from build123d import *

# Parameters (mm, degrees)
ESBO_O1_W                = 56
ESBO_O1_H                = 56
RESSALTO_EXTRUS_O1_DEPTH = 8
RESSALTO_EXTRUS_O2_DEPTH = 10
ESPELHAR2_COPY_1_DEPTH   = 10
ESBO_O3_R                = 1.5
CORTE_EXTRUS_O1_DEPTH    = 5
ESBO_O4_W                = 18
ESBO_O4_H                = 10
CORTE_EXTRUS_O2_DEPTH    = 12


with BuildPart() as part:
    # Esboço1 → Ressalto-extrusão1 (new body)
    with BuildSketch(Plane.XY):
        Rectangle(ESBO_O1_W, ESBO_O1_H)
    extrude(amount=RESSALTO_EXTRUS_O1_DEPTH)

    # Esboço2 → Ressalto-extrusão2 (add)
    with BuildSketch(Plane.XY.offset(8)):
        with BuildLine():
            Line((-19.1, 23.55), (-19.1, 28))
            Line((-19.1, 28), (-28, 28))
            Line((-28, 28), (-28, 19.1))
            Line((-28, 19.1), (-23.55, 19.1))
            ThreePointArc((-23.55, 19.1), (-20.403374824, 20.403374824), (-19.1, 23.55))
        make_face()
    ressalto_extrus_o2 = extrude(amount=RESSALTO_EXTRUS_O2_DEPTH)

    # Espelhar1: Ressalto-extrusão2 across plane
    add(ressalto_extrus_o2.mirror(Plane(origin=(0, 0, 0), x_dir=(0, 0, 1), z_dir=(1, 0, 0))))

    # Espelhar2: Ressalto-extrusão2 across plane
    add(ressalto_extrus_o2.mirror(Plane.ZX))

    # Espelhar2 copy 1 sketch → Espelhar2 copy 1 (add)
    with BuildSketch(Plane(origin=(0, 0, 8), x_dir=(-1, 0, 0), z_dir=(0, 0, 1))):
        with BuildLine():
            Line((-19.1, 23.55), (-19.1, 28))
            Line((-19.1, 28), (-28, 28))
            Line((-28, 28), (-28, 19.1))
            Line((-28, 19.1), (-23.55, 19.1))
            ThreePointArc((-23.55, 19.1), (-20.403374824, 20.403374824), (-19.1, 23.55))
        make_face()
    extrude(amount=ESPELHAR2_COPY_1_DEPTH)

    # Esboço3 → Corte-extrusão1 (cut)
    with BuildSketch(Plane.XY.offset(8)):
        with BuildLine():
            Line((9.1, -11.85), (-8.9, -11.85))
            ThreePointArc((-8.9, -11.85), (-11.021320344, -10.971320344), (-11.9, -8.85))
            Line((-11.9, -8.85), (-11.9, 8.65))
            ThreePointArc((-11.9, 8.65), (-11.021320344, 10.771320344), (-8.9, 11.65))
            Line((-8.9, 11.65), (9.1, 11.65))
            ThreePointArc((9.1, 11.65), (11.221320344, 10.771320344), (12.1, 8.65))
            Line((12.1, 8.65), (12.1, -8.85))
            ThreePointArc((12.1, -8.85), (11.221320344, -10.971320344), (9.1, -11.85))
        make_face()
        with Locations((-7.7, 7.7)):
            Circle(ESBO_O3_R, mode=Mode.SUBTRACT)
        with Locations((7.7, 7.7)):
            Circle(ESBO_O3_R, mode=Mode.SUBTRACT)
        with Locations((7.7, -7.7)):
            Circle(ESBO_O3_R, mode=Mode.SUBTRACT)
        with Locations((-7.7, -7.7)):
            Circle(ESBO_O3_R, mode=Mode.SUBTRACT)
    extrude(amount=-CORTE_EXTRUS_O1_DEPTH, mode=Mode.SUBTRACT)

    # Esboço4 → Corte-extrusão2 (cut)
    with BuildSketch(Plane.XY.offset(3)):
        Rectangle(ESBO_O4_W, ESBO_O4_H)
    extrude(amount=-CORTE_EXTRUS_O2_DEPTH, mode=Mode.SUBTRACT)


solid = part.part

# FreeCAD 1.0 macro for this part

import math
import FreeCAD as App
import Part
import Sketcher

V = App.Vector

doc = App.newDocument("Part")
body = doc.addObject("PartDesign::Body", "Body")

# Sketch on XY plane
sketch1 = body.newObject("Sketcher::SketchObject", "Sketch")
sketch1.AttachmentSupport = (doc.getObject("XY_Plane"), [""])
sketch1.MapMode = "FlatFace"
sketch1.addGeometry([
    Part.LineSegment(V(-28, 28, 0), V(-28, -28, 0)),
    Part.LineSegment(V(-28, -28, 0), V(28, -28, 0)),
    Part.LineSegment(V(28, -28, 0), V(28, 28, 0)),
    Part.LineSegment(V(28, 28, 0), V(-28, 28, 0)),
], False)
sketch1.addConstraint([
    Sketcher.Constraint("Coincident", 0, 2, 1, 1),
    Sketcher.Constraint("Coincident", 1, 2, 2, 1),
    Sketcher.Constraint("Coincident", 2, 2, 3, 1),
    Sketcher.Constraint("Coincident", 3, 2, 0, 1),
    Sketcher.Constraint("Vertical", 0),
    Sketcher.Constraint("Horizontal", 1),
    Sketcher.Constraint("Vertical", 2),
    Sketcher.Constraint("Horizontal", 3),
    Sketcher.Constraint("Symmetric", 0, 2, 2, 2, -1, 1),
    Sketcher.Constraint("Equal", 3, 0),
    Sketcher.Constraint("DistanceX", 1, 1, 1, 2, 56.0),
])
pad1 = body.newObject("PartDesign::Pad", "Pad")
pad1.Profile = sketch1
pad1.Length = 8

# Sketch on XY plane
sketch2 = body.newObject("Sketcher::SketchObject", "Sketch001")
sketch2.AttachmentSupport = (doc.getObject("XY_Plane"), [""])
sketch2.MapMode = "FlatFace"
sketch2.AttachmentOffset = App.Placement(V(0, 0, 8), App.Rotation())
sketch2.addGeometry([
    Part.LineSegment(V(-19.1, 23.55, 0), V(-19.1, 28, 0)),  # 0
    Part.LineSegment(V(-19.1, 28, 0), V(-28, 28, 0)),  # 1
    Part.LineSegment(V(-28, 28, 0), V(-28, 19.1, 0)),  # 2
    Part.LineSegment(V(-28, 19.1, 0), V(-23.55, 19.1, 0)),  # 3
    Part.ArcOfCircle(Part.Circle(V(-23.55, 23.55, 0), V(0, 0, 1), 4.45), math.radians(-90), math.radians(0)),  # 4
], False)
sketch2.addConstraint([
    Sketcher.Constraint("Coincident", 0, 2, 1, 1),
    Sketcher.Constraint("Coincident", 1, 2, 2, 1),
    Sketcher.Constraint("Coincident", 2, 2, 3, 1),
    Sketcher.Constraint("Tangent", 3, 2, 4, 1),
    Sketcher.Constraint("Tangent", 4, 2, 0, 1),
    Sketcher.Constraint("Vertical", 0),
    Sketcher.Constraint("Horizontal", 1),
    Sketcher.Constraint("Vertical", 2),
    Sketcher.Constraint("Horizontal", 3),
    Sketcher.Constraint("Equal", 3, 0),
    Sketcher.Constraint("Radius", 4, 4.45),
    Sketcher.Constraint("DistanceX", 1, 2, 1, 1, 8.9),
    Sketcher.Constraint("DistanceY", -1, 1, 0, 2, 28.0),
    Sketcher.Constraint("DistanceX", 1, 2, -1, 1, 28.0),
])
pad2 = body.newObject("PartDesign::Pad", "Pad001")
pad2.Profile = sketch2
pad2.Length = 10
doc.recompute()

mirrored = body.newObject("PartDesign::Mirrored", "Mirrored")
mirrored.Originals = [pad2]
mirrored.MirrorPlane = (doc.getObject("YZ_Plane"), [""])
body.Tip = mirrored
doc.recompute()

mirrored2 = body.newObject("PartDesign::Mirrored", "Mirrored001")
mirrored2.Originals = [pad2]
mirrored2.MirrorPlane = (doc.getObject("XZ_Plane"), [""])
body.Tip = mirrored2

# Sketch on XY plane
sketch3 = body.newObject("Sketcher::SketchObject", "Sketch002")
sketch3.AttachmentSupport = (doc.getObject("XY_Plane"), [""])
sketch3.MapMode = "FlatFace"
sketch3.AttachmentOffset = App.Placement(V(0, 0, 8), App.Rotation())
sketch3.addGeometry([
    Part.LineSegment(V(19.1, -23.55, 0), V(19.1, -28, 0)),  # 0
    Part.LineSegment(V(19.1, -28, 0), V(28, -28, 0)),  # 1
    Part.LineSegment(V(28, -28, 0), V(28, -19.1, 0)),  # 2
    Part.LineSegment(V(28, -19.1, 0), V(23.55, -19.1, 0)),  # 3
    Part.ArcOfCircle(Part.Circle(V(23.55, -23.55, 0), V(0, 0, 1), 4.45), math.radians(90), math.radians(180)),  # 4
], False)
sketch3.addConstraint([
    Sketcher.Constraint("Coincident", 0, 2, 1, 1),
    Sketcher.Constraint("Coincident", 1, 2, 2, 1),
    Sketcher.Constraint("Coincident", 2, 2, 3, 1),
    Sketcher.Constraint("Tangent", 3, 2, 4, 1),
    Sketcher.Constraint("Tangent", 4, 2, 0, 1),
    Sketcher.Constraint("Vertical", 0),
    Sketcher.Constraint("Horizontal", 1),
    Sketcher.Constraint("Vertical", 2),
    Sketcher.Constraint("Horizontal", 3),
    Sketcher.Constraint("Equal", 3, 0),
    Sketcher.Constraint("Radius", 4, 4.45),
    Sketcher.Constraint("DistanceX", 1, 1, 1, 2, 8.9),
    Sketcher.Constraint("DistanceY", 0, 2, -1, 1, 28.0),
    Sketcher.Constraint("DistanceX", -1, 1, 1, 2, 28.0),
])
pad3 = body.newObject("PartDesign::Pad", "Pad002")
pad3.Profile = sketch3
pad3.Length = 10

# Sketch on XY plane
sketch4 = body.newObject("Sketcher::SketchObject", "Sketch003")
sketch4.AttachmentSupport = (doc.getObject("XY_Plane"), [""])
sketch4.MapMode = "FlatFace"
sketch4.AttachmentOffset = App.Placement(V(0, 0, 8), App.Rotation())
sketch4.addGeometry([
    Part.LineSegment(V(-8.9, -11.85, 0), V(9.1, -11.85, 0)),  # 0
    Part.ArcOfCircle(Part.Circle(V(9.1, -8.85, 0), V(0, 0, 1), 3), math.radians(-90), math.radians(0)),  # 1
    Part.LineSegment(V(12.1, -8.85, 0), V(12.1, 8.65, 0)),  # 2
    Part.ArcOfCircle(Part.Circle(V(9.1, 8.65, 0), V(0, 0, 1), 3), math.radians(0), math.radians(90)),  # 3
    Part.LineSegment(V(9.1, 11.65, 0), V(-8.9, 11.65, 0)),  # 4
    Part.ArcOfCircle(Part.Circle(V(-8.9, 8.65, 0), V(0, 0, 1), 3), math.radians(90), math.radians(180)),  # 5
    Part.LineSegment(V(-11.9, 8.65, 0), V(-11.9, -8.85, 0)),  # 6
    Part.ArcOfCircle(Part.Circle(V(-8.9, -8.85, 0), V(0, 0, 1), 3), math.radians(180), math.radians(270)),  # 7
    Part.Circle(V(7.7, -7.7, 0), V(0, 0, 1), 1.5),  # 8
    Part.Circle(V(-7.7, -7.7, 0), V(0, 0, 1), 1.5),  # 9
    Part.Circle(V(7.7, 7.7, 0), V(0, 0, 1), 1.5),  # 10
    Part.Circle(V(-7.7, 7.7, 0), V(0, 0, 1), 1.5),  # 11
], False)
sketch4.addConstraint([
    Sketcher.Constraint("Tangent", 0, 2, 1, 1),
    Sketcher.Constraint("Tangent", 1, 2, 2, 1),
    Sketcher.Constraint("Tangent", 2, 2, 3, 1),
    Sketcher.Constraint("Tangent", 3, 2, 4, 1),
    Sketcher.Constraint("Tangent", 4, 2, 5, 1),
    Sketcher.Constraint("Tangent", 5, 2, 6, 1),
    Sketcher.Constraint("Tangent", 6, 2, 7, 1),
    Sketcher.Constraint("Tangent", 7, 2, 0, 1),
    Sketcher.Constraint("Horizontal", 0),
    Sketcher.Constraint("Vertical", 2),
    Sketcher.Constraint("Horizontal", 4),
    Sketcher.Constraint("Vertical", 6),
    Sketcher.Constraint("Equal", 1, 3),
    Sketcher.Constraint("Equal", 3, 5),
    Sketcher.Constraint("Equal", 5, 7),
    Sketcher.Constraint("Equal", 8, 9),
    Sketcher.Constraint("Equal", 9, 10),
    Sketcher.Constraint("Equal", 10, 11),
    Sketcher.Constraint("Symmetric", 9, 3, 10, 3, -1, 1),
    Sketcher.Constraint("Symmetric", 8, 3, 11, 3, -1, 1),
    Sketcher.Constraint("Symmetric", 8, 3, 9, 3, -2),
    Sketcher.Constraint("Diameter", 8, 3.0),
    Sketcher.Constraint("Radius", 1, 3.0),
    Sketcher.Constraint("DistanceX", 0, 1, 0, 2, 18.0),
    Sketcher.Constraint("DistanceY", 2, 1, 2, 2, 17.5),
    Sketcher.Constraint("DistanceX", -1, 1, 1, 3, 9.1),
    Sketcher.Constraint("DistanceX", -1, 1, 8, 3, 7.7),
    Sketcher.Constraint("DistanceY", 8, 3, -1, 1, 7.7),
    Sketcher.Constraint("DistanceY", 1, 3, -1, 1, 8.85),
])
pocket1 = body.newObject("PartDesign::Pocket", "Pocket")
pocket1.Profile = sketch4
pocket1.Length = 5

# Sketch on XY plane
sketch5 = body.newObject("Sketcher::SketchObject", "Sketch004")
sketch5.AttachmentSupport = (doc.getObject("XY_Plane"), [""])
sketch5.MapMode = "FlatFace"
sketch5.AttachmentOffset = App.Placement(V(0, 0, 3), App.Rotation())
sketch5.addGeometry([
    Part.LineSegment(V(-9, 5, 0), V(-9, -5, 0)),
    Part.LineSegment(V(-9, -5, 0), V(9, -5, 0)),
    Part.LineSegment(V(9, -5, 0), V(9, 5, 0)),
    Part.LineSegment(V(9, 5, 0), V(-9, 5, 0)),
], False)
sketch5.addConstraint([
    Sketcher.Constraint("Coincident", 0, 2, 1, 1),
    Sketcher.Constraint("Coincident", 1, 2, 2, 1),
    Sketcher.Constraint("Coincident", 2, 2, 3, 1),
    Sketcher.Constraint("Coincident", 3, 2, 0, 1),
    Sketcher.Constraint("Vertical", 0),
    Sketcher.Constraint("Horizontal", 1),
    Sketcher.Constraint("Vertical", 2),
    Sketcher.Constraint("Horizontal", 3),
    Sketcher.Constraint("Symmetric", 0, 2, 2, 2, -1, 1),
    Sketcher.Constraint("DistanceX", 1, 1, 1, 2, 18.0),
    Sketcher.Constraint("DistanceY", 0, 2, 0, 1, 10.0),
])
pocket2 = body.newObject("PartDesign::Pocket", "Pocket001")
pocket2.Profile = sketch5
pocket2.Length = 12

doc.recompute()
